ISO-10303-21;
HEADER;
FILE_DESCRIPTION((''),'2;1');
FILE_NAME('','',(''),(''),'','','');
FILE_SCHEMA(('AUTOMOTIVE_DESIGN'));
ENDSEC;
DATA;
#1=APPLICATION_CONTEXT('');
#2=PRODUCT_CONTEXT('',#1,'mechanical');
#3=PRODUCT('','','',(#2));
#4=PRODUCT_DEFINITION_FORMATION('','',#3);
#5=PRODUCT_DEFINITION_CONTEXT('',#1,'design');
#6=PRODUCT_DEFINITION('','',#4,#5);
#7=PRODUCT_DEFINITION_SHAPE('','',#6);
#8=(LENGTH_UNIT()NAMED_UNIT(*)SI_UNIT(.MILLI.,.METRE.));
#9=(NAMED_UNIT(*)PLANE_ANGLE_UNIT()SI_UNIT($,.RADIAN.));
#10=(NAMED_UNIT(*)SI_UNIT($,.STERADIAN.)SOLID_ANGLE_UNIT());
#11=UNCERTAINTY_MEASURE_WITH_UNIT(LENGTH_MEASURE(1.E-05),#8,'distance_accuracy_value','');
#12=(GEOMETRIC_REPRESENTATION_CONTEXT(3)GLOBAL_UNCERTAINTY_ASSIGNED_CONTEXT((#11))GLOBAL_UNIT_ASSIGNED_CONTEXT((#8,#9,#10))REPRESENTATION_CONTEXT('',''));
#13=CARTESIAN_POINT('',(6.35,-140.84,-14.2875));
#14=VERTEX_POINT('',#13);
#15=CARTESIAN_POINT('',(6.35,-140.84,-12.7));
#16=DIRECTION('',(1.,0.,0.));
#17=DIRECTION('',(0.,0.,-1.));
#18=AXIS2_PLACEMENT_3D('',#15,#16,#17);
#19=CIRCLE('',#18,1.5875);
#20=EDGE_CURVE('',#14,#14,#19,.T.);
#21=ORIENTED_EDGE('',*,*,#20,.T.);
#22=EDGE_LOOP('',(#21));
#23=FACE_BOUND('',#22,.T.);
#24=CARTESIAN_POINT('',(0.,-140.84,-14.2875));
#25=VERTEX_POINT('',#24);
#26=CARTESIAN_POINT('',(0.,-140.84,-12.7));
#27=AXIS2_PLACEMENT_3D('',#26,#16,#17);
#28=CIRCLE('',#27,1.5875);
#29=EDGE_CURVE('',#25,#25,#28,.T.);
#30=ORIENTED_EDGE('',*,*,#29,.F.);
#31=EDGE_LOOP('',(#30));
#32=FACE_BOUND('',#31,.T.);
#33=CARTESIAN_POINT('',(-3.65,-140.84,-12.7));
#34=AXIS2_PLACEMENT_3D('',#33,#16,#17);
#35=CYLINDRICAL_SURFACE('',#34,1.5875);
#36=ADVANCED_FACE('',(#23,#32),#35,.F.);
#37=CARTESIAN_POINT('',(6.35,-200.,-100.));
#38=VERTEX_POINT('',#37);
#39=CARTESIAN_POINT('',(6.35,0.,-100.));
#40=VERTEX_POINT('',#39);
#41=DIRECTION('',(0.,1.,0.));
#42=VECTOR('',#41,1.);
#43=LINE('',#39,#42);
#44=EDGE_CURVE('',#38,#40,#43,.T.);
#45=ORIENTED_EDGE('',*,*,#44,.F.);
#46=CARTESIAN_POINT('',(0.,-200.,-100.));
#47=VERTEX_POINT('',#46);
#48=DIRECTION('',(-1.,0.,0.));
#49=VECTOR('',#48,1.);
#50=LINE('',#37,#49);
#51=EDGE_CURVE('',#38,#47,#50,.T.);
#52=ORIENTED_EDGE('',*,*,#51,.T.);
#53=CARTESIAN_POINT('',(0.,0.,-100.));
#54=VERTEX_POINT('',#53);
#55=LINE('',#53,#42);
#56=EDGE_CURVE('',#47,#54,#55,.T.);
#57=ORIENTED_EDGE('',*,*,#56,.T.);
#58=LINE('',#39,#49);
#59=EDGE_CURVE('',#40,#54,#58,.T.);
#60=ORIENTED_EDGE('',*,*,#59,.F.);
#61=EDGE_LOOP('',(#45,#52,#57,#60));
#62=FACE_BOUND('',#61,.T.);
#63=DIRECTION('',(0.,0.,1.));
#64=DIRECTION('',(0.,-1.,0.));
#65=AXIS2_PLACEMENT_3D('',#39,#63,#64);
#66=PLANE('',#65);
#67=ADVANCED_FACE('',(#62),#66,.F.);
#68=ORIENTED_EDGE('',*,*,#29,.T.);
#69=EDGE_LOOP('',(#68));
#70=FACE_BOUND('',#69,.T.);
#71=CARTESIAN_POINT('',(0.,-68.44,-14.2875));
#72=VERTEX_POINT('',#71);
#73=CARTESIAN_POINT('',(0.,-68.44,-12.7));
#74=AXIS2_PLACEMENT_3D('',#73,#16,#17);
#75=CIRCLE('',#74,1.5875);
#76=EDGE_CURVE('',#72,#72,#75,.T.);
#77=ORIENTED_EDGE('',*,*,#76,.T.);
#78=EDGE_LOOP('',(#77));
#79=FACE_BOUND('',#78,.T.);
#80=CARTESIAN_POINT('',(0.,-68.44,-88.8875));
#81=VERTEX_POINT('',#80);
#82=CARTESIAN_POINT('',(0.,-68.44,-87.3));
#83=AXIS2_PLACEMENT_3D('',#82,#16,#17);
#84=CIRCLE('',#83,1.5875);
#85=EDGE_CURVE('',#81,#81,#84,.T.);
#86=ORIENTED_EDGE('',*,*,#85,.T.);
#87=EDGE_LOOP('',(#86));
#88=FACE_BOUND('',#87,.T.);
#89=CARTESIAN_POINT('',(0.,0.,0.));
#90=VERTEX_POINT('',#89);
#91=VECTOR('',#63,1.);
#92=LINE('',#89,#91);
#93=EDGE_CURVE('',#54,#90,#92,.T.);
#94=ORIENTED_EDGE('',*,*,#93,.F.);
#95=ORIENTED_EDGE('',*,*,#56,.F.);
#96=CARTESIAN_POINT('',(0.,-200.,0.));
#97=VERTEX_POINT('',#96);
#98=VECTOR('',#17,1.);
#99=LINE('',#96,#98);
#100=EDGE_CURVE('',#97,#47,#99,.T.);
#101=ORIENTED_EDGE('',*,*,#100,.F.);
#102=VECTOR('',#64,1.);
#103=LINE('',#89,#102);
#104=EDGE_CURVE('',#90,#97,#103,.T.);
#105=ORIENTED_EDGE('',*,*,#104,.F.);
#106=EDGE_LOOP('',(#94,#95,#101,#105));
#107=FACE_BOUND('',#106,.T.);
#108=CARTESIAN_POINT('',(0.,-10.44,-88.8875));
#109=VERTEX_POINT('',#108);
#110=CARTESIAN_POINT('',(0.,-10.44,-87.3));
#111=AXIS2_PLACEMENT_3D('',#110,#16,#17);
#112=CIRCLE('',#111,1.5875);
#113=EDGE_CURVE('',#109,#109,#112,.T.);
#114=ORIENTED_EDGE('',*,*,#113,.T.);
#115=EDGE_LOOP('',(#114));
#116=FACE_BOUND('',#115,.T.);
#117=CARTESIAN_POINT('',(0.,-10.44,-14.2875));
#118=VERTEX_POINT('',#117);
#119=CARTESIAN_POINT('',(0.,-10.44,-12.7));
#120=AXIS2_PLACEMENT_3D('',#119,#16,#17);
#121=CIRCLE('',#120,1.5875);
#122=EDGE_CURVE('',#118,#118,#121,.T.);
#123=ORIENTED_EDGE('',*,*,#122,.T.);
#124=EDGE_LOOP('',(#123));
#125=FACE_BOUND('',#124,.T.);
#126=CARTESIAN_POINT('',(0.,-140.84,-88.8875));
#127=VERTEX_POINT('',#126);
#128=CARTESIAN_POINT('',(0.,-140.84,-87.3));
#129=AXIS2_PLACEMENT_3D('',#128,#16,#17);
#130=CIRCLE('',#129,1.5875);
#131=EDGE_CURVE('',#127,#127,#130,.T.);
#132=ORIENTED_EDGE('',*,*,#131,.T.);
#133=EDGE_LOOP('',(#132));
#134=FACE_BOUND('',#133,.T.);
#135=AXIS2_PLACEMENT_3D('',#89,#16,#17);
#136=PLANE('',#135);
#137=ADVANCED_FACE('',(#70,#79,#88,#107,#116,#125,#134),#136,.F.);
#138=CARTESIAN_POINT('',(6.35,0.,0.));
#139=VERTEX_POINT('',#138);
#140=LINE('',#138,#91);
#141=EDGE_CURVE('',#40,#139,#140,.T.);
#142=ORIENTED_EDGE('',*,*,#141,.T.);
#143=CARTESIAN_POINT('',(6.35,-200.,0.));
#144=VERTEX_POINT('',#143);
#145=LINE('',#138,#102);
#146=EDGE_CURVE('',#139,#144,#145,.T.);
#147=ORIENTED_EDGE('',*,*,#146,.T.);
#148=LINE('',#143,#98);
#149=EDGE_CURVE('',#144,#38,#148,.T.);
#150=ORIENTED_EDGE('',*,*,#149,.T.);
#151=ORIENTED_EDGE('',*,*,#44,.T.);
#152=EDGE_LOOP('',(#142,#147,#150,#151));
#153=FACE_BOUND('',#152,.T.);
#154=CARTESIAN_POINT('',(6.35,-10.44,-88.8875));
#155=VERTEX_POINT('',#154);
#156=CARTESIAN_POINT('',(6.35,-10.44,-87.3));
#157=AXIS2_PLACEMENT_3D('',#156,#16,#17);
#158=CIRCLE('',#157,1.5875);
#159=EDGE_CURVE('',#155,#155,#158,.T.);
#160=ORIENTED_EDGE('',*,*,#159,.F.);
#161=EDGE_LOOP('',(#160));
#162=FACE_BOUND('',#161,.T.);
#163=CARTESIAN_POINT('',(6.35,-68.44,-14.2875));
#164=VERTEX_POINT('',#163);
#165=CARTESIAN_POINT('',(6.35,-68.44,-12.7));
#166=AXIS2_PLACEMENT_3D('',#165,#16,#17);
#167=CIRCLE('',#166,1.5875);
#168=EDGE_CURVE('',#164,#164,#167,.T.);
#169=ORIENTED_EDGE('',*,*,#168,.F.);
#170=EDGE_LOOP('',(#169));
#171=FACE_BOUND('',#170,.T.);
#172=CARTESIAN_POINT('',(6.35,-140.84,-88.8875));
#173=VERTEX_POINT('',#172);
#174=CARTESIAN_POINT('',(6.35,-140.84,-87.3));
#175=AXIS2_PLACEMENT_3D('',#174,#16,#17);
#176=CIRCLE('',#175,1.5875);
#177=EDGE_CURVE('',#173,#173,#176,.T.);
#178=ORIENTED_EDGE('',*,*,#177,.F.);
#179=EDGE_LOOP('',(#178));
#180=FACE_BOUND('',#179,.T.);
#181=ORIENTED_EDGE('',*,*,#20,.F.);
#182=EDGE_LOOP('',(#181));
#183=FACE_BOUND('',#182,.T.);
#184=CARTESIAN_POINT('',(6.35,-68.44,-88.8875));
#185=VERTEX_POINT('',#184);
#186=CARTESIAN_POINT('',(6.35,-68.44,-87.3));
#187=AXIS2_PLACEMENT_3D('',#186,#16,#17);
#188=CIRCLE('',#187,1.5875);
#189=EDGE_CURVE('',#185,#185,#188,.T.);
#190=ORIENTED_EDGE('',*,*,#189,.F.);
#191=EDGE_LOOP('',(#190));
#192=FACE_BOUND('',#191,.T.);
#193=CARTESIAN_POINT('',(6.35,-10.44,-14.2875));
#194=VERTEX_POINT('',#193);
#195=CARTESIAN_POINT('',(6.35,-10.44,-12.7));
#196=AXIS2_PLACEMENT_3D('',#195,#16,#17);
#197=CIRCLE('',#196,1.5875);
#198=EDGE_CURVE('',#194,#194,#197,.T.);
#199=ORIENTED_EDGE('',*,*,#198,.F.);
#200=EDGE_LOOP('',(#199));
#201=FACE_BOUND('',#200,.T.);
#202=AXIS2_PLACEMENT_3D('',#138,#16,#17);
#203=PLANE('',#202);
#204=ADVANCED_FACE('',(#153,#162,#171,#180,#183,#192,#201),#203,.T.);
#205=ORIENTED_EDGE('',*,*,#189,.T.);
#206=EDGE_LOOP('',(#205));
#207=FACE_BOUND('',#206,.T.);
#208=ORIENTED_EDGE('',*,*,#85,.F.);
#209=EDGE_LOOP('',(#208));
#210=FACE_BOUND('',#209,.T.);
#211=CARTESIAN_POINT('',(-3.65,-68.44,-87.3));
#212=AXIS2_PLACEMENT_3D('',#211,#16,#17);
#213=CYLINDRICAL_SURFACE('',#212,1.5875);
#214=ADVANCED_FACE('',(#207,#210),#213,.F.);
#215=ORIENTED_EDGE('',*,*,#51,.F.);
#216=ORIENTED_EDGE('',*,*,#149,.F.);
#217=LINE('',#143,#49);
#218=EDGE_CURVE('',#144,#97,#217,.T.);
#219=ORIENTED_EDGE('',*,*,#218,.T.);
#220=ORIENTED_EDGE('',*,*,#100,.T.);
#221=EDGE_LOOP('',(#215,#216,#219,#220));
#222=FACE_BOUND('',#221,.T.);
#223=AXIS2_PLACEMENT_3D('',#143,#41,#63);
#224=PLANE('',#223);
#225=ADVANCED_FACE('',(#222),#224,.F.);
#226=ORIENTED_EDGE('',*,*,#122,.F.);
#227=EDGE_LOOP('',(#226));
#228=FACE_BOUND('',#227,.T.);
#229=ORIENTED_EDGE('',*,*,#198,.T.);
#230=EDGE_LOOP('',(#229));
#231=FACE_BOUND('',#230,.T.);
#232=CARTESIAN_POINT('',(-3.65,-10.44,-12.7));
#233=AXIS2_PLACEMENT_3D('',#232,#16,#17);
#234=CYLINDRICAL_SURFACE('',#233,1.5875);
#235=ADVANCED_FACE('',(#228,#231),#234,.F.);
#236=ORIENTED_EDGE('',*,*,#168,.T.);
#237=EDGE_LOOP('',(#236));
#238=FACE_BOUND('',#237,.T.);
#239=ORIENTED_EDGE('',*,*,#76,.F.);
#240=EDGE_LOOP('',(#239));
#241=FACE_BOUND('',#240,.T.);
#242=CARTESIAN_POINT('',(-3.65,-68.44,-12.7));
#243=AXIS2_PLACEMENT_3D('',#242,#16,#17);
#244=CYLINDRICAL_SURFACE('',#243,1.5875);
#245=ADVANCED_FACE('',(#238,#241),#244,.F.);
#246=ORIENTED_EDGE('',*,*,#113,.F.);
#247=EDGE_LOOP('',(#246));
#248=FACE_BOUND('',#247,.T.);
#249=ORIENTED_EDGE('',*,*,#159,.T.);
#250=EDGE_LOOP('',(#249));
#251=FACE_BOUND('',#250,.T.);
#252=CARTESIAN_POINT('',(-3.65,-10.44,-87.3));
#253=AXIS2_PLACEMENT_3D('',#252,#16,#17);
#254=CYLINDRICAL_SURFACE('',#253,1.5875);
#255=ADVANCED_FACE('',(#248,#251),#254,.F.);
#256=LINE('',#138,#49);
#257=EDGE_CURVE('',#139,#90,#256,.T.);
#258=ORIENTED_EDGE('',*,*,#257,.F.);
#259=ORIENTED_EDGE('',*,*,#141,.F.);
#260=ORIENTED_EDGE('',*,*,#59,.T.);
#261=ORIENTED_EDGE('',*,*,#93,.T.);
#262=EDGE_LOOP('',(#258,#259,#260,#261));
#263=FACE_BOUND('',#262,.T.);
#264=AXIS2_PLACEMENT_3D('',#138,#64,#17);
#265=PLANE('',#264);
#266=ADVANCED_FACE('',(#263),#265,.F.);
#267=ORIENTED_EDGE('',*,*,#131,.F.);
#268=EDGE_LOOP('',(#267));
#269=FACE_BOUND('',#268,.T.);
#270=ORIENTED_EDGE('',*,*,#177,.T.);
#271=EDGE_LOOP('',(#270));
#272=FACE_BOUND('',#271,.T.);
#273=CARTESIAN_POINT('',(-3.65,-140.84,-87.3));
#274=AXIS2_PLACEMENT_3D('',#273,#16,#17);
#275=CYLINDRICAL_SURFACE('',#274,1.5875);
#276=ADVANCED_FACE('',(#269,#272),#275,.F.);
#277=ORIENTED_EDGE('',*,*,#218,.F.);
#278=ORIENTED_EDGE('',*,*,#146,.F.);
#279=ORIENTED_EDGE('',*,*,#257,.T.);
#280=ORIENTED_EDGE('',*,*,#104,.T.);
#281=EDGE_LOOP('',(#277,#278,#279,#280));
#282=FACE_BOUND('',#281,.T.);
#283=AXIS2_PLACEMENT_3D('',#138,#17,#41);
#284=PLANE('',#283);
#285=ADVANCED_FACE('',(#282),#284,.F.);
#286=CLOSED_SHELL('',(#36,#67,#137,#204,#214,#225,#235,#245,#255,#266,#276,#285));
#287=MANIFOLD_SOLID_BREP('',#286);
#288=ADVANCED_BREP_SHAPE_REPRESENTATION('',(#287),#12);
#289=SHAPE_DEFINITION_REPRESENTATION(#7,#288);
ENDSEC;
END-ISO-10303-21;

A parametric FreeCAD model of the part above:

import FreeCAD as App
import Part
import Sketcher
from FreeCAD import Vector
Q = App.Units.Quantity

doc = App.newDocument("Part")
params = doc.addObject("Spreadsheet::Sheet", "Params")
for row, (alias, value) in enumerate([
    ("sketch1_width", "200 mm"),
    ("sketch1_height", "100 mm"),
    ("pad1_length", "6.35 mm"),
    ("pocket1_length", "10 mm"),
], start=1):
    params.set(f"A{row}", alias)
    params.set(f"B{row}", "=" + value)
    params.setAlias(f"B{row}", alias)

body = doc.addObject("PartDesign::Body", "Body")

sketch1 = body.newObject("Sketcher::SketchObject", "Sketch")
sketch1.AttachmentSupport = (doc.getObject("YZ_Plane"), [""])
sketch1.MapMode = "FlatFace"
sketch1.addGeometry(Part.LineSegment(Vector(0, 0, 0), Vector(-200, 0, 0)), False)
sketch1.addGeometry(Part.LineSegment(Vector(-200, 0, 0), Vector(-200, -100, 0)), False)
sketch1.addGeometry(Part.LineSegment(Vector(-200, -100, 0), Vector(0, -100, 0)), False)
sketch1.addGeometry(Part.LineSegment(Vector(0, -100, 0), Vector(0, 0, 0)), False)
sketch1.addConstraint(Sketcher.Constraint("Coincident", 0, 2, 1, 1))
sketch1.addConstraint(Sketcher.Constraint("Coincident", 1, 2, 2, 1))
sketch1.addConstraint(Sketcher.Constraint("Coincident", 2, 2, 3, 1))
sketch1.addConstraint(Sketcher.Constraint("Coincident", 3, 2, 0, 1))
sketch1.addConstraint(Sketcher.Constraint("Horizontal", 0))
sketch1.addConstraint(Sketcher.Constraint("Vertical", 1))
sketch1.addConstraint(Sketcher.Constraint("Horizontal", 2))
sketch1.addConstraint(Sketcher.Constraint("Vertical", 3))
sketch1.addConstraint(Sketcher.Constraint("Coincident", 3, 2, -1, 1))
sketch1.addConstraint(Sketcher.Constraint("DistanceX", 0, 2, 0, 1, Q("200 mm")))
sketch1.addConstraint(Sketcher.Constraint("DistanceY", 1, 2, 1, 1, Q("100 mm")))
sketch1.setExpression("Constraints[9]", "Params.sketch1_width")
sketch1.setExpression("Constraints[10]", "Params.sketch1_height")
pad1 = body.newObject("PartDesign::Pad", "Pad")
pad1.Profile = sketch1
pad1.setExpression("Length", "Params.pad1_length")

sketch2 = body.newObject("Sketcher::SketchObject", "Sketch001")
sketch2.AttachmentSupport = (doc.getObject("YZ_Plane"), [""])
sketch2.MapMode = "FlatFace"
sketch2.AttachmentOffset = App.Placement(Vector(0, 0, 6.35), App.Rotation())
sketch2.addGeometry(Part.Circle(Vector(-10.4, -12.7, 0), Vector(0, 0, 1), 1.6), False)
sketch2.addGeometry(Part.Circle(Vector(-10.4, -87.3, 0), Vector(0, 0, 1), 1.6), False)
sketch2.addGeometry(Part.Circle(Vector(-68.4, -12.7, 0), Vector(0, 0, 1), 1.6), False)
sketch2.addGeometry(Part.Circle(Vector(-68.4, -87.3, 0), Vector(0, 0, 1), 1.6), False)
sketch2.addGeometry(Part.Circle(Vector(-140.8, -12.7, 0), Vector(0, 0, 1), 1.6), False)
sketch2.addGeometry(Part.Circle(Vector(-140.8, -87.3, 0), Vector(0, 0, 1), 1.6), False)
sketch2.addConstraint(Sketcher.Constraint("Equal", 0, 1))
sketch2.addConstraint(Sketcher.Constraint("Equal", 1, 2))
sketch2.addConstraint(Sketcher.Constraint("Equal", 2, 3))
sketch2.addConstraint(Sketcher.Constraint("Equal", 3, 4))
sketch2.addConstraint(Sketcher.Constraint("Equal", 4, 5))
sketch2.addConstraint(Sketcher.Constraint("Horizontal", 0, 3, 2, 3))
sketch2.addConstraint(Sketcher.Constraint("Horizontal", 1, 3, 3, 3))
sketch2.addConstraint(Sketcher.Constraint("Horizontal", 2, 3, 4, 3))
sketch2.addConstraint(Sketcher.Constraint("Horizontal", 3, 3, 5, 3))
sketch2.addConstraint(Sketcher.Constraint("Vertical", 0, 3, 1, 3))
sketch2.addConstraint(Sketcher.Constraint("Vertical", 2, 3, 3, 3))
sketch2.addConstraint(Sketcher.Constraint("Vertical", 4, 3, 5, 3))
sketch2.addConstraint(Sketcher.Constraint("Diameter", 0, Q("3.175 mm")))
sketch2.addConstraint(Sketcher.Constraint("DistanceX", 2, 3, 0, 3, Q("58 mm")))
sketch2.addConstraint(Sketcher.Constraint("DistanceY", 0, 3, -1, 1, Q("12.7 mm")))
sketch2.addConstraint(Sketcher.Constraint("DistanceY", 1, 3, -1, 1, Q("87.3 mm")))
sketch2.addConstraint(Sketcher.Constraint("DistanceX", 4, 3, 2, 3, Q("72.4 mm")))
sketch2.addConstraint(Sketcher.Constraint("DistanceX", 0, 3, -1, 1, Q("10.44 mm")))
pocket1 = body.newObject("PartDesign::Pocket", "Pocket")
pocket1.Profile = sketch2
pocket1.setExpression("Length", "Params.pocket1_length")

doc.recompute()
